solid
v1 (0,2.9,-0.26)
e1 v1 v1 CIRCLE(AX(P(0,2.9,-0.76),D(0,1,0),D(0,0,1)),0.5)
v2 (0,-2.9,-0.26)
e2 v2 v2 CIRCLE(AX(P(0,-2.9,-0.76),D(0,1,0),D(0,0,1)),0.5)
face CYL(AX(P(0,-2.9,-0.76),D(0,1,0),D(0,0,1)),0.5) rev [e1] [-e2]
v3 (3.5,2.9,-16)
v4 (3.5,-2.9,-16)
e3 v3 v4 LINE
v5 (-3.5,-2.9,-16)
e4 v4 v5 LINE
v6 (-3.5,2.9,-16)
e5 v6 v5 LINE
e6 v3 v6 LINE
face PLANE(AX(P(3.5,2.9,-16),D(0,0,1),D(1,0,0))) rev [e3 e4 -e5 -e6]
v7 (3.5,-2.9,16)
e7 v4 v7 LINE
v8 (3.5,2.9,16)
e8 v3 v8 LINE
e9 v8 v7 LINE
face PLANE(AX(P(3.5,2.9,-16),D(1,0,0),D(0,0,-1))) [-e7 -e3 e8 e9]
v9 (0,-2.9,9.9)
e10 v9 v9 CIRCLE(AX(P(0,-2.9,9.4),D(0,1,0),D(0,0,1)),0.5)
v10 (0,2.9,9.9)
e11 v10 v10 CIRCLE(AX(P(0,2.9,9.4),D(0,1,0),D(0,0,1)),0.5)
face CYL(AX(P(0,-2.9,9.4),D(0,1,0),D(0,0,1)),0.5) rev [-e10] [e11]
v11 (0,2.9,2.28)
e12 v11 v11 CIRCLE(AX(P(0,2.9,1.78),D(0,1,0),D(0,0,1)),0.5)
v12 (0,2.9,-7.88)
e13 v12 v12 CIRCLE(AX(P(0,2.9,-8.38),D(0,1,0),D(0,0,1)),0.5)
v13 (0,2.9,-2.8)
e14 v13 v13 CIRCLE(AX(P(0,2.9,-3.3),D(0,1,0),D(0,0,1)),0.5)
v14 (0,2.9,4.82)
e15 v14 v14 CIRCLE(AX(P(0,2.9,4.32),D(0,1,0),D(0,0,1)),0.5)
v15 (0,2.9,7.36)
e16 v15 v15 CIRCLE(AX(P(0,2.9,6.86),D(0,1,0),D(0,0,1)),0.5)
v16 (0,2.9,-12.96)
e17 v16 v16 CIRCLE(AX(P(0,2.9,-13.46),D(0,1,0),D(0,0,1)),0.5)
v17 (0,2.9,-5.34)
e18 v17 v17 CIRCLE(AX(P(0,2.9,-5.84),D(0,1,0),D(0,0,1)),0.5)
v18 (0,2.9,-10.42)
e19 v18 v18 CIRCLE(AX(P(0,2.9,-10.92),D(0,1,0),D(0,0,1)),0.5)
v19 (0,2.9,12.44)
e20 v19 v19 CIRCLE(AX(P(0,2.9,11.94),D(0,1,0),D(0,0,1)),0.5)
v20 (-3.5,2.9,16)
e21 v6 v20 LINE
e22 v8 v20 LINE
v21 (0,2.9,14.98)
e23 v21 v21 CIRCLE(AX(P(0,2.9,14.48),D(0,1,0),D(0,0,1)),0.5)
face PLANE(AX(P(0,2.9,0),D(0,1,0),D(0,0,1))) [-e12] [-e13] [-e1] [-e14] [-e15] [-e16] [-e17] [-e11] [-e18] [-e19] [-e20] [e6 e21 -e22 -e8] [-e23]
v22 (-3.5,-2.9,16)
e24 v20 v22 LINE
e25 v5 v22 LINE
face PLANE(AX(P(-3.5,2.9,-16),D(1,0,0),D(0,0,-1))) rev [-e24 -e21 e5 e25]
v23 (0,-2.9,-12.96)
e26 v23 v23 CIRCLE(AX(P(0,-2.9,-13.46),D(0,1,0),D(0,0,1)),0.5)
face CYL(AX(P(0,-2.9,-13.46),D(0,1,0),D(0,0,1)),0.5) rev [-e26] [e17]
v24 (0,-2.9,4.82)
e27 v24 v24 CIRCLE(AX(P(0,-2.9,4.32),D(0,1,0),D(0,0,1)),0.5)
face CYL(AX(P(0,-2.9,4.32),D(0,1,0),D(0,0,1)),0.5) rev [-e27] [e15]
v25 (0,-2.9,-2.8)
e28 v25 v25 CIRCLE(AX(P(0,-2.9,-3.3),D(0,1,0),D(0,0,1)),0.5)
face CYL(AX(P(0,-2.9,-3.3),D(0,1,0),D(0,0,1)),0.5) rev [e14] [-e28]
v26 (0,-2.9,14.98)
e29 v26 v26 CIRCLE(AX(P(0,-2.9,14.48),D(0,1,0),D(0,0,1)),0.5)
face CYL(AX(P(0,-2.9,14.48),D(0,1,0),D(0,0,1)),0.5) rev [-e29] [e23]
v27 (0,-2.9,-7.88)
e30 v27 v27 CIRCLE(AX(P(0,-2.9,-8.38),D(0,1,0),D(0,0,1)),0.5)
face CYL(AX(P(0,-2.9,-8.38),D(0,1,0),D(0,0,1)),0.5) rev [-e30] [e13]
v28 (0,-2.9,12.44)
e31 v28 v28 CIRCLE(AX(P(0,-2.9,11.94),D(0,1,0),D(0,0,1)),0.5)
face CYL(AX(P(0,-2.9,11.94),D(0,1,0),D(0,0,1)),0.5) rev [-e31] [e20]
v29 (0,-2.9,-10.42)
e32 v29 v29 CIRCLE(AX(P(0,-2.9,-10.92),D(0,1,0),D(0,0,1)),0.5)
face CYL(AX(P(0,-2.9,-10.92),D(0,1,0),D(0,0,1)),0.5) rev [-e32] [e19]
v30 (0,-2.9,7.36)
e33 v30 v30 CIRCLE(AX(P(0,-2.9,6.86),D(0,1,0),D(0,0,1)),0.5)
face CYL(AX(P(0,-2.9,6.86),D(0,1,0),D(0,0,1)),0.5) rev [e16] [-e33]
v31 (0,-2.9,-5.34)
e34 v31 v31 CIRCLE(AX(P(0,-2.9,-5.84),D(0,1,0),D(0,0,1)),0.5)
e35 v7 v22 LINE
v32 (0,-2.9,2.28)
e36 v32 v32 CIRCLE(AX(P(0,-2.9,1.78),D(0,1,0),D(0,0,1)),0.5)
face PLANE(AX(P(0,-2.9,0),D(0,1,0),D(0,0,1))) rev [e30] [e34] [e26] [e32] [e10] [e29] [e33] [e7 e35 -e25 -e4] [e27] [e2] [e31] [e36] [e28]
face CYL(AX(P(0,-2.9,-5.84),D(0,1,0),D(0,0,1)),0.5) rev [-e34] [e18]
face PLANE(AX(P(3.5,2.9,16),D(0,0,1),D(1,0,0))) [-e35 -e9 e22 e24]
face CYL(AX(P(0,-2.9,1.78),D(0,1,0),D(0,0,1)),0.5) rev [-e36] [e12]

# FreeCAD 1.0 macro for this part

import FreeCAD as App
import Part
import Sketcher
from FreeCAD import Vector


def add_polygon(sketch, points):
    """Adds a closed chain of lines whose ends are joined by coincident constraints."""
    first, n = sketch.GeometryCount, len(points)
    for a, b in zip(points, points[1:] + points[:1]):
        sketch.addGeometry(Part.LineSegment(App.Vector(*a, 0), App.Vector(*b, 0)), False)
    for i in range(n):
        sketch.addConstraint(Sketcher.Constraint("Coincident", first + i, 2, first + (i + 1) % n, 1))

doc = App.newDocument("Part")
body = doc.addObject("PartDesign::Body", "Body")

# Sketch on XZ plane
sketch1 = body.newObject("Sketcher::SketchObject", "Sketch")
sketch1.AttachmentSupport = (doc.getObject("XZ_Plane"), [""])
sketch1.MapMode = "FlatFace"
add_polygon(sketch1, [(-4, -16), (-4, 16), (4, 16), (4, -16)])  # lines 0-3
sketch1.addConstraint(Sketcher.Constraint("Vertical", 0))
sketch1.addConstraint(Sketcher.Constraint("Horizontal", 1))
sketch1.addConstraint(Sketcher.Constraint("Vertical", 2))
sketch1.addConstraint(Sketcher.Constraint("Horizontal", 3))
sketch1.addConstraint(Sketcher.Constraint("Symmetric", 0, 2, 2, 2, -1, 1))
sketch1.addConstraint(Sketcher.Constraint("DistanceX", 1, 1, 1, 2, 7.0))
sketch1.addConstraint(Sketcher.Constraint("DistanceY", 0, 1, 0, 2, 32.0))
pad1 = body.newObject("PartDesign::Pad", "Pad")
pad1.Profile = sketch1
pad1.Length = 5.8
pad1.Midplane = True

# Sketch on XZ plane
sketch2 = body.newObject("Sketcher::SketchObject", "Sketch001")
sketch2.AttachmentSupport = (doc.getObject("XZ_Plane"), [""])
sketch2.MapMode = "FlatFace"
sketch2.AttachmentOffset = App.Placement(Vector(0, 0, -2.9), App.Rotation())
sketch2.addGeometry(Part.Circle(Vector(0, -13.5, 0), Vector(0, 0, 1), 0.5), False)
sketch2.addConstraint(Sketcher.Constraint("PointOnObject", 0, 3, -2))
sketch2.addConstraint(Sketcher.Constraint("Diameter", 0, 1.0))
sketch2.addConstraint(Sketcher.Constraint("DistanceY", 0, 3, -1, 1, 13.46))
pocket1 = body.newObject("PartDesign::Pocket", "Pocket")
pocket1.Profile = sketch2
pocket1.Type = "ThroughAll"
pocket1.Reversed = True
doc.recompute()

linearpattern = body.newObject("PartDesign::LinearPattern", "LinearPattern")
linearpattern.Originals = [pocket1]
linearpattern.Direction = (doc.getObject("Z_Axis"), [""])
linearpattern.Mode = "offset"
linearpattern.Offset = 2.54
linearpattern.Occurrences = 12
body.Tip = linearpattern

doc.recompute()
